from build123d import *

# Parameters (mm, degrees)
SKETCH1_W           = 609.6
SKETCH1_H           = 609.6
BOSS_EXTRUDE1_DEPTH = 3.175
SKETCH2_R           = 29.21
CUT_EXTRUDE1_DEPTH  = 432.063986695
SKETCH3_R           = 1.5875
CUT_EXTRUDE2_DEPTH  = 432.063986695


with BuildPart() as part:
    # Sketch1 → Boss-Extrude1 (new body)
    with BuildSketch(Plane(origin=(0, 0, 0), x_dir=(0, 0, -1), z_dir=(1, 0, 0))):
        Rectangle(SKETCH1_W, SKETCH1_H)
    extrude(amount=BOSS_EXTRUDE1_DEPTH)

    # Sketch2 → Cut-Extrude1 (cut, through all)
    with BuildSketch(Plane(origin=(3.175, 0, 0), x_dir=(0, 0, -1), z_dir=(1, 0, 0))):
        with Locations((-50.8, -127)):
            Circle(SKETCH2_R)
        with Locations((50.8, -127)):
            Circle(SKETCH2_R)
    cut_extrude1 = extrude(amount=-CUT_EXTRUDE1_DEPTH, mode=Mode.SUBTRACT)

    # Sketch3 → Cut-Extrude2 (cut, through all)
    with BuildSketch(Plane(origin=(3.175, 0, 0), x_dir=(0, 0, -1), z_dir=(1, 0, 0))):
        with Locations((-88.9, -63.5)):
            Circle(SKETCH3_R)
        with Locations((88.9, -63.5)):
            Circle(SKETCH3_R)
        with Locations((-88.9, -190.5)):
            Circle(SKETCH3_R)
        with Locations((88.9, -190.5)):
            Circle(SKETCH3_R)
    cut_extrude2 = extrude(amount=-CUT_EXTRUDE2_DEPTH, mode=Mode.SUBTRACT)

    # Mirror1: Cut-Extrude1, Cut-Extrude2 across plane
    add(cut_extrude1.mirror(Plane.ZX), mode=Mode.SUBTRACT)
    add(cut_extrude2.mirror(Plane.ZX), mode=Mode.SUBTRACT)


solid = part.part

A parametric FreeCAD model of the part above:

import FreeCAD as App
import Part
import Sketcher

V = App.Vector
Q = App.Units.Quantity


def add_polygon(sketch, points):
    """Adds a closed chain of lines whose ends are joined by coincident constraints."""
    first, n = sketch.GeometryCount, len(points)
    for a, b in zip(points, points[1:] + points[:1]):
        sketch.addGeometry(Part.LineSegment(App.Vector(*a, 0), App.Vector(*b, 0)), False)
    for i in range(n):
        sketch.addConstraint(Sketcher.Constraint("Coincident", first + i, 2, first + (i + 1) % n, 1))

doc = App.newDocument("Part")
body = doc.addObject("PartDesign::Body", "Body")

sketch1 = doc.addObject("Sketcher::SketchObject", "Sketch")
body.addObject(sketch1)
sketch1.AttachmentSupport = (doc.YZ_Plane, [""])
sketch1.MapMode = "FlatFace"
add_polygon(sketch1, [(305, 305), (-305, 305), (-305, -305), (305, -305)])
sketch1.addConstraint(Sketcher.Constraint("Horizontal", 0))
sketch1.addConstraint(Sketcher.Constraint("Vertical", 1))
sketch1.addConstraint(Sketcher.Constraint("Horizontal", 2))
sketch1.addConstraint(Sketcher.Constraint("Vertical", 3))
sketch1.addConstraint(Sketcher.Constraint("Symmetric", 0, 2, 2, 2, -1, 1))
sketch1.addConstraint(Sketcher.Constraint("Equal", 2, 1))
sketch1.addConstraint(Sketcher.Constraint("DistanceX", 0, 2, 0, 1, Q("24 in")))
pad1 = doc.addObject("PartDesign::Pad", "Pad")
body.addObject(pad1)
pad1.Profile = sketch1
pad1.Length = Q("0.125 in")

sketch2 = doc.addObject("Sketcher::SketchObject", "Sketch001")
body.addObject(sketch2)
sketch2.AttachmentSupport = (doc.YZ_Plane, [""])
sketch2.MapMode = "FlatFace"
sketch2.AttachmentOffset = App.Placement(V(0, 0, 0.125 * 25.4), App.Rotation())
sketch2.addGeometry(Part.Circle(V(-127, 51, 0), V(0, 0, 1), 29), False)
sketch2.addGeometry(Part.Circle(V(-127, -51, 0), V(0, 0, 1), 29), False)
sketch2.addConstraint(Sketcher.Constraint("Equal", 0, 1))
sketch2.addConstraint(Sketcher.Constraint("Symmetric", 0, 3, 1, 3, -1))
sketch2.addConstraint(Sketcher.Constraint("Diameter", 0, Q("2.3 in")))
sketch2.addConstraint(Sketcher.Constraint("DistanceX", 0, 3, -1, 1, Q("5 in")))
sketch2.addConstraint(Sketcher.Constraint("DistanceY", -1, 1, 0, 3, Q("2 in")))
pocket1 = doc.addObject("PartDesign::Pocket", "Pocket")
body.addObject(pocket1)
pocket1.Profile = sketch2
pocket1.Type = "ThroughAll"

sketch3 = doc.addObject("Sketcher::SketchObject", "Sketch002")
body.addObject(sketch3)
sketch3.AttachmentSupport = (doc.YZ_Plane, [""])
sketch3.MapMode = "FlatFace"
sketch3.AttachmentOffset = App.Placement(V(0, 0, 0.125 * 25.4), App.Rotation())
sketch3.addGeometry(Part.Circle(V(-63.5, 88.9, 0), V(0, 0, 1), 1.6), False)
sketch3.addGeometry(Part.Circle(V(-63.5, -88.9, 0), V(0, 0, 1), 1.6), False)
sketch3.addGeometry(Part.Circle(V(-190.5, 88.9, 0), V(0, 0, 1), 1.6), False)
sketch3.addGeometry(Part.Circle(V(-190.5, -88.9, 0), V(0, 0, 1), 1.6), False)
sketch3.addConstraint(Sketcher.Constraint("Equal", 0, 1))
sketch3.addConstraint(Sketcher.Constraint("Equal", 1, 2))
sketch3.addConstraint(Sketcher.Constraint("Equal", 2, 3))
sketch3.addConstraint(Sketcher.Constraint("Symmetric", 0, 3, 1, 3, -1))
sketch3.addConstraint(Sketcher.Constraint("Symmetric", 2, 3, 3, 3, -1))
sketch3.addConstraint(Sketcher.Constraint("Horizontal", 0, 3, 2, 3))
sketch3.addConstraint(Sketcher.Constraint("Diameter", 0, Q("0.125 in")))
sketch3.addConstraint(Sketcher.Constraint("DistanceY", 1, 3, 0, 3, Q("7 in")))
sketch3.addConstraint(Sketcher.Constraint("DistanceX", 2, 3, 0, 3, Q("5 in")))
sketch3.addConstraint(Sketcher.Constraint("DistanceX", 0, 3, -1, 1, Q("2.5 in")))
pocket2 = doc.addObject("PartDesign::Pocket", "Pocket001")
body.addObject(pocket2)
pocket2.Profile = sketch3
pocket2.Type = "ThroughAll"
doc.recompute()

mirrored = doc.addObject("PartDesign::Mirrored", "Mirrored")
body.addObject(mirrored)
mirrored.Originals = [pocket1, pocket2]
mirrored.MirrorPlane = (doc.XZ_Plane, [""])
body.Tip = mirrored

doc.recompute()
